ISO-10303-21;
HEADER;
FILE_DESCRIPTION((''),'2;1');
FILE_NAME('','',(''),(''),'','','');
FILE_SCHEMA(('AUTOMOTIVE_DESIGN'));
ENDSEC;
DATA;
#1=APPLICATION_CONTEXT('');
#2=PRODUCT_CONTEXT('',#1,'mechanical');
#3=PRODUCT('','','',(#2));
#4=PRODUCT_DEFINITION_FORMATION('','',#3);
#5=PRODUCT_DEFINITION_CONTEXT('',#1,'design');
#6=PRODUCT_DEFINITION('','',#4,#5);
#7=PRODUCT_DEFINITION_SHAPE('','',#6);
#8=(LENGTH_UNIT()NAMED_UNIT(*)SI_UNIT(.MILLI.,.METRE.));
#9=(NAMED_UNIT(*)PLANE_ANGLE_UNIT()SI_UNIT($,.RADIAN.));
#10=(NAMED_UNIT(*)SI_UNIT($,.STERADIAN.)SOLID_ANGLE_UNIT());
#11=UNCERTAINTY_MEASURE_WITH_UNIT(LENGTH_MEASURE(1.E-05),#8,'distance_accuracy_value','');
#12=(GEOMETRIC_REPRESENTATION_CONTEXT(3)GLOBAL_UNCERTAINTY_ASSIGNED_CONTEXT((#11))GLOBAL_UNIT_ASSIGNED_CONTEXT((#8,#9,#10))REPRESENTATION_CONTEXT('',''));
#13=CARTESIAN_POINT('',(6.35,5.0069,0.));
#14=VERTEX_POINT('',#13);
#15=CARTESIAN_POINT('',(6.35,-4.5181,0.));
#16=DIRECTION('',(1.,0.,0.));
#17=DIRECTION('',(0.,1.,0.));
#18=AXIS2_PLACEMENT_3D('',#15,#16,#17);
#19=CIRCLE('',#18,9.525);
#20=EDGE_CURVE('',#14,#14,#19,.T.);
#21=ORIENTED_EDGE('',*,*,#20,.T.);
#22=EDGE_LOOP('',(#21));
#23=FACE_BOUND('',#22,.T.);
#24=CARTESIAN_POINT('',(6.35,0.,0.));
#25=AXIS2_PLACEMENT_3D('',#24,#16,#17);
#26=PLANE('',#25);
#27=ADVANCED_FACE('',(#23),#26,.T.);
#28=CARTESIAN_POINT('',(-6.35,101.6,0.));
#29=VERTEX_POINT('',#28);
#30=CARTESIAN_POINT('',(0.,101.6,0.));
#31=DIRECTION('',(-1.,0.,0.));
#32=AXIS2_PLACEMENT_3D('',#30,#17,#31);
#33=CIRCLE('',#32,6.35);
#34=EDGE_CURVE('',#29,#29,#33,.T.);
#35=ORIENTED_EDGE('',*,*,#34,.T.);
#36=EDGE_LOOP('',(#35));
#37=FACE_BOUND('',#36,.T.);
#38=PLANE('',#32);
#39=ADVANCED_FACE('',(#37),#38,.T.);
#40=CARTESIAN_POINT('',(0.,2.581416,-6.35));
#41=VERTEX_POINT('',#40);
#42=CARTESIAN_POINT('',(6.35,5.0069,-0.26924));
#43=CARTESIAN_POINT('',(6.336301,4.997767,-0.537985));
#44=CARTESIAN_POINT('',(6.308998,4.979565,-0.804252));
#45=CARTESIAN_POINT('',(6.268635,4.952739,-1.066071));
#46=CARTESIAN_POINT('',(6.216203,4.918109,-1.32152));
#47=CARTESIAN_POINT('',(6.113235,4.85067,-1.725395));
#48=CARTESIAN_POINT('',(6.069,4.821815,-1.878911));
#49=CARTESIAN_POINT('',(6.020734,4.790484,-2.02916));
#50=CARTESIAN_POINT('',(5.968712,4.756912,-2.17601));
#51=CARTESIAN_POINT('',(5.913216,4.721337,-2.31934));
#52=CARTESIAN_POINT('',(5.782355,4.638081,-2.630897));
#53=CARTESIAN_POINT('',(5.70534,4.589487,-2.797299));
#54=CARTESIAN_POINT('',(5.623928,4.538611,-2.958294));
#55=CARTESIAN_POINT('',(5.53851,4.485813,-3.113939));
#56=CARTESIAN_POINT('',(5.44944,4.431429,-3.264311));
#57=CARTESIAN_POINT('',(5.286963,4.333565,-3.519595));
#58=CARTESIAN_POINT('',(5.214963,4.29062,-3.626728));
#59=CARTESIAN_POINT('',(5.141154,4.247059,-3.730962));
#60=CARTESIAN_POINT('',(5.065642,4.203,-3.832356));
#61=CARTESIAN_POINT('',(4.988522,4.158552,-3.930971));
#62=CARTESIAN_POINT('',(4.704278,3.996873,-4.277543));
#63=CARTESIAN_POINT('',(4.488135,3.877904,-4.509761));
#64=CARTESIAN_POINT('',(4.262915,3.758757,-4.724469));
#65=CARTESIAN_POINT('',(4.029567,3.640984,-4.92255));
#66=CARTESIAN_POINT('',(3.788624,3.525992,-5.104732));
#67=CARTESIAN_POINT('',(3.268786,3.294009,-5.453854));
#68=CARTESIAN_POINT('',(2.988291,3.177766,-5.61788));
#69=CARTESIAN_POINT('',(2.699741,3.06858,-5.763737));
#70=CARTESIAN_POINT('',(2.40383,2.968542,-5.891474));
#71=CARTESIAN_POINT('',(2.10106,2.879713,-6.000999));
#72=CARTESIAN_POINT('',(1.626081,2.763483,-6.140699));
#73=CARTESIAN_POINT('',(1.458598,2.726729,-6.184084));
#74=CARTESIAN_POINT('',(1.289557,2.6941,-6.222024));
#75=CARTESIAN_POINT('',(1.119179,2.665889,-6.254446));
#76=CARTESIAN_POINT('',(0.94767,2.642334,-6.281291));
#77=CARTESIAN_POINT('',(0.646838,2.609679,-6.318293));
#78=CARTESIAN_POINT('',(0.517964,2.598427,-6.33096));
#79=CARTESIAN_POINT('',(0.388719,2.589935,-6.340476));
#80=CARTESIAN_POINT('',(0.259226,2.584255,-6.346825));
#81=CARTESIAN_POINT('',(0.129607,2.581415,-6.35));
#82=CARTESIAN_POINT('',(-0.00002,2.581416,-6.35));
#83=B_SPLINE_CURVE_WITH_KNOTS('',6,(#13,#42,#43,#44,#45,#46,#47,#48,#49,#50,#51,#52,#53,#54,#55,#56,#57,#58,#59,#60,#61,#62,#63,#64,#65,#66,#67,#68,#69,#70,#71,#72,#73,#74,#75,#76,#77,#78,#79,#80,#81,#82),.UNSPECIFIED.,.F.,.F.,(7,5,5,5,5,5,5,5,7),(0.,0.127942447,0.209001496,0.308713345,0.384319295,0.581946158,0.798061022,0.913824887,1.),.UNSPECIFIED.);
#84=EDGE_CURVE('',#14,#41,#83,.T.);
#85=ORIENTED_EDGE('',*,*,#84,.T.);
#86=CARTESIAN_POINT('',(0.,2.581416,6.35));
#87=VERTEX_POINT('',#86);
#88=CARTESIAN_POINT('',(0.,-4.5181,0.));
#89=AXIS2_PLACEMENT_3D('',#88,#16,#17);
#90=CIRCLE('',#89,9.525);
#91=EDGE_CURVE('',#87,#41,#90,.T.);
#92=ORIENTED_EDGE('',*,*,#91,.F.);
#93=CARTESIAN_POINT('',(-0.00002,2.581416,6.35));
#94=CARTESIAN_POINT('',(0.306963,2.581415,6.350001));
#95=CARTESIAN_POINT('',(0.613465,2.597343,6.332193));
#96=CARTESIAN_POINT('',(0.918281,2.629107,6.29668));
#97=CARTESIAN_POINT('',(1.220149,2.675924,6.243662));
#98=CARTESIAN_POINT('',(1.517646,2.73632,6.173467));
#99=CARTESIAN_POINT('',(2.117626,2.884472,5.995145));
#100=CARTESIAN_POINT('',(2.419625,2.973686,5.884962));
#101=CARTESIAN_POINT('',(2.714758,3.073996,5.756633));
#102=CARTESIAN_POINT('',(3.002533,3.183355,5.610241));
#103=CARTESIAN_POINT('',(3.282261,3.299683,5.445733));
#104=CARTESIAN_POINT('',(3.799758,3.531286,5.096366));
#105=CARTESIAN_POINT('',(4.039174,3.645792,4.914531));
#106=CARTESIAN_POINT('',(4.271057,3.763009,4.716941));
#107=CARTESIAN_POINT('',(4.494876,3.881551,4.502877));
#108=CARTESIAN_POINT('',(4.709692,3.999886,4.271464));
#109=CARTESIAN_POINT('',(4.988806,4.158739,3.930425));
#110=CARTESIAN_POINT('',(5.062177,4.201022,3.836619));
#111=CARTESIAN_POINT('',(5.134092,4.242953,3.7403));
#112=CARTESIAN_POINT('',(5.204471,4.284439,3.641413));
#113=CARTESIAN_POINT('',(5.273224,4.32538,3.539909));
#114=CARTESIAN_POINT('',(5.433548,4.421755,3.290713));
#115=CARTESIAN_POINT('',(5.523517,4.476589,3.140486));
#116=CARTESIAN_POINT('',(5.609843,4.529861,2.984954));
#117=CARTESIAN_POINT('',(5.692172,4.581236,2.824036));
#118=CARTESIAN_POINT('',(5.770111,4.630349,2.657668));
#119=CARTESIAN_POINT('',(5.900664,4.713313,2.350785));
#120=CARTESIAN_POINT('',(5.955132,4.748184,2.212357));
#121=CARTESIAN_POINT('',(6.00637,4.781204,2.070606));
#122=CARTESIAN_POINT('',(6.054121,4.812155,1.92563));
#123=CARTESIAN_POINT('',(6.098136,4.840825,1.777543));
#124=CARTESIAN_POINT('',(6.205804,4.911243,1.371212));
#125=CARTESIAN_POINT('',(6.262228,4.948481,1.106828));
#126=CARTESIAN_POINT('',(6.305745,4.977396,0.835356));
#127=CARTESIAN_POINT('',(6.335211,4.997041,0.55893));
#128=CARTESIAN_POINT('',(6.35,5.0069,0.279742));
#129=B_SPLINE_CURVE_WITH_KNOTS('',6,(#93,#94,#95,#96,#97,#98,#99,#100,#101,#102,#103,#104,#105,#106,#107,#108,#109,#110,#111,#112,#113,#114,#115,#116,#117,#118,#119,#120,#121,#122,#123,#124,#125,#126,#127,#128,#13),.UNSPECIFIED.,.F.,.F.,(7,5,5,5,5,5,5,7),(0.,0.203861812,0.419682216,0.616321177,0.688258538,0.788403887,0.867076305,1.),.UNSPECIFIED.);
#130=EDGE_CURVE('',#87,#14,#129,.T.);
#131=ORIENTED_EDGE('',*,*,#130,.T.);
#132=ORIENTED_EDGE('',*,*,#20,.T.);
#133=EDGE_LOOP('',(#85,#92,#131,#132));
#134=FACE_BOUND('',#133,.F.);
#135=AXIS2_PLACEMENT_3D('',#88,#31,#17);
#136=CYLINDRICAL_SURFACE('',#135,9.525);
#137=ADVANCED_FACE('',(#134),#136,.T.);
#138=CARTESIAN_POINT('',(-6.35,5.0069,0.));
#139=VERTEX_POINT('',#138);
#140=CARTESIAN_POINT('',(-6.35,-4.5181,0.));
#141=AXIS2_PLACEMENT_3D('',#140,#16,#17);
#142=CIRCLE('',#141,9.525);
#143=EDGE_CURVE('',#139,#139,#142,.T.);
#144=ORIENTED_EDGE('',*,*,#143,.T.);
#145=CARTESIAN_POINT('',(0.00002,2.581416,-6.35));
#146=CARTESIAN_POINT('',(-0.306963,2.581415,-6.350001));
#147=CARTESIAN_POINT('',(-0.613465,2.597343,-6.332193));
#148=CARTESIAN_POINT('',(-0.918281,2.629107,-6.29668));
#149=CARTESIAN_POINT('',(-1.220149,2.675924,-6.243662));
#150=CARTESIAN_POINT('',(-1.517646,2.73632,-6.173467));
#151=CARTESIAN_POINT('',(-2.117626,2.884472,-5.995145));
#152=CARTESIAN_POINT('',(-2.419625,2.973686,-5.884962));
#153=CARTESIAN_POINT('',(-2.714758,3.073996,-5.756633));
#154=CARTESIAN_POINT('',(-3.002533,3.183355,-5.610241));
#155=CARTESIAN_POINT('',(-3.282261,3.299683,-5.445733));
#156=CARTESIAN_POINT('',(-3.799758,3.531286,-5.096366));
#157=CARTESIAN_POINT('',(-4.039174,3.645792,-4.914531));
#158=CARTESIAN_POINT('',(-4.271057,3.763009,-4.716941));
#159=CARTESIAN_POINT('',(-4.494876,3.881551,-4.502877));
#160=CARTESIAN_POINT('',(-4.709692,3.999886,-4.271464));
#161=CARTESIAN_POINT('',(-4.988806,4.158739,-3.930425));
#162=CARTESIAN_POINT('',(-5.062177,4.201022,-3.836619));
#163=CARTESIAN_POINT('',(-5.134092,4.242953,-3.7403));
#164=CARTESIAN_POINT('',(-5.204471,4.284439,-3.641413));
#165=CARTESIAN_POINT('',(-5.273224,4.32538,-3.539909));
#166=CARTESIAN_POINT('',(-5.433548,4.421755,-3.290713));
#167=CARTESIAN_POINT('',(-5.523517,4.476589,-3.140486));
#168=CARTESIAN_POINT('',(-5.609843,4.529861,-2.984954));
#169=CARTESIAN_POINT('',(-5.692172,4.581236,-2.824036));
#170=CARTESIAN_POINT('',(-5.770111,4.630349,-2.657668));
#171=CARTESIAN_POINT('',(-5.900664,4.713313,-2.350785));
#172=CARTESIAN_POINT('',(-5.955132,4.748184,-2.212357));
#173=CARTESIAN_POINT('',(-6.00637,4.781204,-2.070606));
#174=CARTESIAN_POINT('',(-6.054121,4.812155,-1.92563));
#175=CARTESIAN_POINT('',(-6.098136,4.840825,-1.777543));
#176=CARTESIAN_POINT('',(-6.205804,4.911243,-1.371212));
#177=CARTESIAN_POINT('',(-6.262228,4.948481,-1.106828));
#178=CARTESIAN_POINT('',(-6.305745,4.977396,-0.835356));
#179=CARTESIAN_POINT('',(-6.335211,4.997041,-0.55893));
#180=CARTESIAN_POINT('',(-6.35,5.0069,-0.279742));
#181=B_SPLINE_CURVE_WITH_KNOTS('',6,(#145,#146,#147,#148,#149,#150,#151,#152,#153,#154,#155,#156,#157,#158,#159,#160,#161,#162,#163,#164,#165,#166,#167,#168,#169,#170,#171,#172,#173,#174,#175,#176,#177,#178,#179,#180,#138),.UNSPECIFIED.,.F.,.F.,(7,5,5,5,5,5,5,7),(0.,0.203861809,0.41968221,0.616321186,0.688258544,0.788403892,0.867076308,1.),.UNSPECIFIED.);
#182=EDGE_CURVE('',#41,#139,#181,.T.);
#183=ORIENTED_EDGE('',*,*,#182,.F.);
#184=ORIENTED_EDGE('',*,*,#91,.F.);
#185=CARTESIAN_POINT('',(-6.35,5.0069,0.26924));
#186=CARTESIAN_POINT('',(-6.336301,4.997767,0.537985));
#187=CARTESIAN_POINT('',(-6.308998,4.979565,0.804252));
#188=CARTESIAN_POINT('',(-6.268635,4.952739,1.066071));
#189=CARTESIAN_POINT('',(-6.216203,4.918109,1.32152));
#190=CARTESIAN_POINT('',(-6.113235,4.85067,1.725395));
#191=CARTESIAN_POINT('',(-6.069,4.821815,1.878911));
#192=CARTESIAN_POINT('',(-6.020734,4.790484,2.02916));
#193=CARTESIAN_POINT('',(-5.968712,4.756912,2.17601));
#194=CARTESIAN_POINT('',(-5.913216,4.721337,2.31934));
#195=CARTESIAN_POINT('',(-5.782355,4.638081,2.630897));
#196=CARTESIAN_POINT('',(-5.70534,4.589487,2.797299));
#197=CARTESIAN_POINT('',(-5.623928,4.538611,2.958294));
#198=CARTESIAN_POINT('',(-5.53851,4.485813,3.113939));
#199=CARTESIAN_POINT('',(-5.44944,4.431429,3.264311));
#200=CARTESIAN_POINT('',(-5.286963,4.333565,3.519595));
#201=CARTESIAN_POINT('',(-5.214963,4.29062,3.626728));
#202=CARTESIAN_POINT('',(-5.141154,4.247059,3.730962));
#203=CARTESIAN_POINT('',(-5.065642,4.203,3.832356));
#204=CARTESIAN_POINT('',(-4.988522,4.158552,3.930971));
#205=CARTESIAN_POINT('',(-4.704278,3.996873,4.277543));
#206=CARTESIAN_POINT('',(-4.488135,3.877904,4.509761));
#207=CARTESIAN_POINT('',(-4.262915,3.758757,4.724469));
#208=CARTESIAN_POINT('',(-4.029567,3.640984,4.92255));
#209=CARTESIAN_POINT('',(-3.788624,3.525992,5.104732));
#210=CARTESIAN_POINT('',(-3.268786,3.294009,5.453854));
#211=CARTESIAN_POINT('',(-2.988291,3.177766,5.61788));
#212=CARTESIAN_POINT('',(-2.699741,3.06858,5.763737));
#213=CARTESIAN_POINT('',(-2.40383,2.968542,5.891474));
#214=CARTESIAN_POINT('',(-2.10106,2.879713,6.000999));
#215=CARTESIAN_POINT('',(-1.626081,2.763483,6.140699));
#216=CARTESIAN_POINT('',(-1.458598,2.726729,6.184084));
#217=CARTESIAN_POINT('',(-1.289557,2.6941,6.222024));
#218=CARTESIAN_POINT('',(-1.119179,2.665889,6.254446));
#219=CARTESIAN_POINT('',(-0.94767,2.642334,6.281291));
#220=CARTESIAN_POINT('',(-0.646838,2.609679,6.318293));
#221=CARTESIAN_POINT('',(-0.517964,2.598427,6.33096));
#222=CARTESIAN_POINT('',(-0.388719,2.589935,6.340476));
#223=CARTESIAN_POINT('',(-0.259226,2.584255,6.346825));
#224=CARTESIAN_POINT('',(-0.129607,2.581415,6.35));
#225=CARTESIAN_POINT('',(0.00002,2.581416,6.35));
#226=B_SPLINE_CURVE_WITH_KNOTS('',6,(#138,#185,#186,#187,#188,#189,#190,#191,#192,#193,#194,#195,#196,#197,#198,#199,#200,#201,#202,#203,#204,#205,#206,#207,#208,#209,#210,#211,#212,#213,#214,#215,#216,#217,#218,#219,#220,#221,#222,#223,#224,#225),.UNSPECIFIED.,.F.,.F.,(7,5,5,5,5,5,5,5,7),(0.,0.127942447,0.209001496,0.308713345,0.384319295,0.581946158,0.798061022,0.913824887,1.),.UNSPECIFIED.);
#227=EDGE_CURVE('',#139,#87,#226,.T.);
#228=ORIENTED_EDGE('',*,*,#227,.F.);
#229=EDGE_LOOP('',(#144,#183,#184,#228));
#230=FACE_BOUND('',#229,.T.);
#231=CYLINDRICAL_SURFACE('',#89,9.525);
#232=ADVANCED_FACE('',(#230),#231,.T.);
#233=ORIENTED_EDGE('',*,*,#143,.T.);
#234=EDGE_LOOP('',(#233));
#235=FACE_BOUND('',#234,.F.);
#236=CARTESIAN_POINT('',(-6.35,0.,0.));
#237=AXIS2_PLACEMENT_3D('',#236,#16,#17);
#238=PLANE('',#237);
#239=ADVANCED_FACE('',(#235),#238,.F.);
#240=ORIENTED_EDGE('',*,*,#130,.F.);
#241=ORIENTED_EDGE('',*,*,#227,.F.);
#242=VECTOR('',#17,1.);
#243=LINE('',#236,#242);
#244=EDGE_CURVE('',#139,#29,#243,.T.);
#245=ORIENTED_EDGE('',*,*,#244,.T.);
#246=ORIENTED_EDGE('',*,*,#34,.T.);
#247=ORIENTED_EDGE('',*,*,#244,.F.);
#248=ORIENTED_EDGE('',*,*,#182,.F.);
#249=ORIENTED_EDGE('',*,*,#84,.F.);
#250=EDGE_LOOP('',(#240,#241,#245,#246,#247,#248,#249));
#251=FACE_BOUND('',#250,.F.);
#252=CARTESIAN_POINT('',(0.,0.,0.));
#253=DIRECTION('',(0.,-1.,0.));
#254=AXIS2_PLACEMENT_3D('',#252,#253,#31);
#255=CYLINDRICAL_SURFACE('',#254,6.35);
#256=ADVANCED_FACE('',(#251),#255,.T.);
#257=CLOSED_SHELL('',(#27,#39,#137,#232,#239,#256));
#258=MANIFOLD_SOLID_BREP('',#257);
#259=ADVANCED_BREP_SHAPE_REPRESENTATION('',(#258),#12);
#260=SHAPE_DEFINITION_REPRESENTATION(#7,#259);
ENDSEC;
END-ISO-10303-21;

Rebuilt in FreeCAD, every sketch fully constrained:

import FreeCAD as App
import Part
import Sketcher
from FreeCAD import Vector
Q = App.Units.Quantity

doc = App.newDocument("Part")
body = doc.addObject("PartDesign::Body", "Body")

# Sketch on XZ plane
sketch1 = body.newObject("Sketcher::SketchObject", "Sketch")
sketch1.AttachmentSupport = (doc.getObject("XZ_Plane"), [""])
sketch1.MapMode = "FlatFace"
sketch1.addGeometry(Part.Circle(Vector(0, 0, 0), Vector(0, 0, 1), 6), False)
sketch1.addConstraint([
    Sketcher.Constraint("Coincident", 0, 3, -1, 1),
    Sketcher.Constraint("Diameter", 0, Q("0.5 in")),
])
pad1 = body.newObject("PartDesign::Pad", "Pad")
pad1.Profile = sketch1
pad1.Length = Q("4 in")
pad1.Reversed = True

# Sketch on YZ plane
sketch2 = body.newObject("Sketcher::SketchObject", "Sketch001")
sketch2.AttachmentSupport = (doc.getObject("YZ_Plane"), [""])
sketch2.MapMode = "FlatFace"
sketch2.addGeometry(Part.Circle(Vector(-5, 0, 0), Vector(0, 0, 1), 10), False)
sketch2.addConstraint([
    Sketcher.Constraint("PointOnObject", 0, 3, -1),
    Sketcher.Constraint("Diameter", 0, Q("0.75 in")),
    Sketcher.Constraint("DistanceX", 0, 3, -1, 1, Q("4.518 mm")),
])
pad2 = body.newObject("PartDesign::Pad", "Pad001")
pad2.Profile = sketch2
pad2.Length = Q("0.5 in")
pad2.Midplane = True

doc.recompute()
